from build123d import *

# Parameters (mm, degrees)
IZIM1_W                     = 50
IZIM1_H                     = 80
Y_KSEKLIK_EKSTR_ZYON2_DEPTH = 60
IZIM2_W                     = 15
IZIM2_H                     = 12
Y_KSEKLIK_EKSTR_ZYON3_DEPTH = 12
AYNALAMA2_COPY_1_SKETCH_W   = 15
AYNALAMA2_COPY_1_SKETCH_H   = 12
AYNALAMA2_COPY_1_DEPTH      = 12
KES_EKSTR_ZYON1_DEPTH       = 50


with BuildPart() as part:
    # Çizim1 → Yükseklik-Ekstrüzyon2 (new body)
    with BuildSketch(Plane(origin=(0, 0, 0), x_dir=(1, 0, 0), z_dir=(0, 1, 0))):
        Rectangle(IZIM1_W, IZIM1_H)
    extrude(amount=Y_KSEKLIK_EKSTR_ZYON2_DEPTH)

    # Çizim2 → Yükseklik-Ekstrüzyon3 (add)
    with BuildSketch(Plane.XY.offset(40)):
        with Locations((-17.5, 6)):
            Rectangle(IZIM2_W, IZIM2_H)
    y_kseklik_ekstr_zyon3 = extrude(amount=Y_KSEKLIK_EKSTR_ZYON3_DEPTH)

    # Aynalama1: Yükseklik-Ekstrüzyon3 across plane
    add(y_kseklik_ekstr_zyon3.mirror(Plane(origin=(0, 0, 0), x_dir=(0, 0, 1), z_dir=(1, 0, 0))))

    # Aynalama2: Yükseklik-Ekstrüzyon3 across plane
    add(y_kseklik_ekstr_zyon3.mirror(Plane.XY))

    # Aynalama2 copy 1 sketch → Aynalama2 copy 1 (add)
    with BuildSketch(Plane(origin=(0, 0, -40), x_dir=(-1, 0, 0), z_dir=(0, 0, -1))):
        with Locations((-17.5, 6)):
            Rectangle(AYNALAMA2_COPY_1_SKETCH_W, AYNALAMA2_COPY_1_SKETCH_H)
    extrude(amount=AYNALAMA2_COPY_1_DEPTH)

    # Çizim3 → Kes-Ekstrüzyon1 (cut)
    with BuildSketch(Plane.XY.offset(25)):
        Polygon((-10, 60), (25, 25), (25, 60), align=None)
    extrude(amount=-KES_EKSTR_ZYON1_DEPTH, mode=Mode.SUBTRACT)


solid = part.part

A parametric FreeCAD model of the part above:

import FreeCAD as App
import Part
import Sketcher

V = App.Vector


def add_polygon(sketch, points):
    """Adds a closed chain of lines whose ends are joined by coincident constraints."""
    first, n = sketch.GeometryCount, len(points)
    for a, b in zip(points, points[1:] + points[:1]):
        sketch.addGeometry(Part.LineSegment(App.Vector(*a, 0), App.Vector(*b, 0)), False)
    for i in range(n):
        sketch.addConstraint(Sketcher.Constraint("Coincident", first + i, 2, first + (i + 1) % n, 1))

doc = App.newDocument("Part")
body = doc.addObject("PartDesign::Body", "Body")

sketch1 = doc.addObject("Sketcher::SketchObject", "Sketch")
body.addObject(sketch1)
sketch1.AttachmentSupport = (doc.XZ_Plane, [""])
sketch1.MapMode = "FlatFace"
add_polygon(sketch1, [(-25, -40), (-25, 40), (25, 40), (25, -40)])
sketch1.addConstraint([
    Sketcher.Constraint("Vertical", 0),
    Sketcher.Constraint("Horizontal", 1),
    Sketcher.Constraint("Vertical", 2),
    Sketcher.Constraint("Horizontal", 3),
    Sketcher.Constraint("Symmetric", 0, 2, 2, 2, -1, 1),
    Sketcher.Constraint("DistanceX", 1, 1, 1, 2, 50.0),
    Sketcher.Constraint("DistanceY", 0, 1, 0, 2, 80.0),
])
pad1 = doc.addObject("PartDesign::Pad", "Pad")
body.addObject(pad1)
pad1.Profile = sketch1
pad1.Length = 60
pad1.Reversed = True

sketch2 = doc.addObject("Sketcher::SketchObject", "Sketch001")
body.addObject(sketch2)
sketch2.AttachmentSupport = (doc.XY_Plane, [""])
sketch2.MapMode = "FlatFace"
sketch2.AttachmentOffset = App.Placement(V(0, 0, 40), App.Rotation())
add_polygon(sketch2, [(-25, 12), (-25, 0), (-10, 0), (-10, 12)])
sketch2.addConstraint([
    Sketcher.Constraint("Vertical", 0),
    Sketcher.Constraint("Horizontal", 1),
    Sketcher.Constraint("Vertical", 2),
    Sketcher.Constraint("Horizontal", 3),
    Sketcher.Constraint("PointOnObject", 0, 2, -1),
    Sketcher.Constraint("DistanceX", 1, 1, 1, 2, 15.0),
    Sketcher.Constraint("DistanceY", 0, 2, 0, 1, 12.0),
    Sketcher.Constraint("DistanceX", 0, 2, -1, 1, 25.0),
])
pad2 = doc.addObject("PartDesign::Pad", "Pad001")
body.addObject(pad2)
pad2.Profile = sketch2
pad2.Length = 12
doc.recompute()

mirrored = doc.addObject("PartDesign::Mirrored", "Mirrored")
body.addObject(mirrored)
mirrored.Originals = [pad2]
mirrored.MirrorPlane = (doc.YZ_Plane, [""])
body.Tip = mirrored
doc.recompute()

mirrored2 = doc.addObject("PartDesign::Mirrored", "Mirrored001")
body.addObject(mirrored2)
mirrored2.Originals = [pad2]
mirrored2.MirrorPlane = (doc.XY_Plane, [""])
body.Tip = mirrored2

sketch3 = doc.addObject("Sketcher::SketchObject", "Sketch002")
body.addObject(sketch3)
sketch3.AttachmentSupport = (doc.XY_Plane, [""])
sketch3.MapMode = "FlatFace"
sketch3.AttachmentOffset = App.Placement(V(0, 0, -40), App.Rotation())
add_polygon(sketch3, [(25, 12), (25, 0), (10, 0), (10, 12)])
sketch3.addConstraint([
    Sketcher.Constraint("Vertical", 0),
    Sketcher.Constraint("Horizontal", 1),
    Sketcher.Constraint("Vertical", 2),
    Sketcher.Constraint("Horizontal", 3),
    Sketcher.Constraint("PointOnObject", 0, 2, -1),
    Sketcher.Constraint("DistanceX", 1, 2, 1, 1, 15.0),
    Sketcher.Constraint("DistanceY", 0, 2, 0, 1, 12.0),
    Sketcher.Constraint("DistanceX", -1, 1, 0, 2, 25.0),
])
pad3 = doc.addObject("PartDesign::Pad", "Pad002")
body.addObject(pad3)
pad3.Profile = sketch3
pad3.Length = 12
pad3.Reversed = True

sketch4 = doc.addObject("Sketcher::SketchObject", "Sketch003")
body.addObject(sketch4)
sketch4.AttachmentSupport = (doc.XY_Plane, [""])
sketch4.MapMode = "FlatFace"
sketch4.AttachmentOffset = App.Placement(V(0, 0, 25), App.Rotation())
add_polygon(sketch4, [(-10, 60), (25, 25), (25, 60)])
sketch4.addConstraint([
    Sketcher.Constraint("Vertical", 1),
    Sketcher.Constraint("Horizontal", 2),
    Sketcher.Constraint("Equal", 2, 1),
    Sketcher.Constraint("DistanceX", 2, 2, 2, 1, 35.0),
    Sketcher.Constraint("DistanceX", -1, 1, 0, 2, 25.0),
    Sketcher.Constraint("DistanceY", -1, 1, 0, 2, 25.0),
])
pocket1 = doc.addObject("PartDesign::Pocket", "Pocket")
body.addObject(pocket1)
pocket1.Profile = sketch4
pocket1.Length = 50

doc.recompute()
